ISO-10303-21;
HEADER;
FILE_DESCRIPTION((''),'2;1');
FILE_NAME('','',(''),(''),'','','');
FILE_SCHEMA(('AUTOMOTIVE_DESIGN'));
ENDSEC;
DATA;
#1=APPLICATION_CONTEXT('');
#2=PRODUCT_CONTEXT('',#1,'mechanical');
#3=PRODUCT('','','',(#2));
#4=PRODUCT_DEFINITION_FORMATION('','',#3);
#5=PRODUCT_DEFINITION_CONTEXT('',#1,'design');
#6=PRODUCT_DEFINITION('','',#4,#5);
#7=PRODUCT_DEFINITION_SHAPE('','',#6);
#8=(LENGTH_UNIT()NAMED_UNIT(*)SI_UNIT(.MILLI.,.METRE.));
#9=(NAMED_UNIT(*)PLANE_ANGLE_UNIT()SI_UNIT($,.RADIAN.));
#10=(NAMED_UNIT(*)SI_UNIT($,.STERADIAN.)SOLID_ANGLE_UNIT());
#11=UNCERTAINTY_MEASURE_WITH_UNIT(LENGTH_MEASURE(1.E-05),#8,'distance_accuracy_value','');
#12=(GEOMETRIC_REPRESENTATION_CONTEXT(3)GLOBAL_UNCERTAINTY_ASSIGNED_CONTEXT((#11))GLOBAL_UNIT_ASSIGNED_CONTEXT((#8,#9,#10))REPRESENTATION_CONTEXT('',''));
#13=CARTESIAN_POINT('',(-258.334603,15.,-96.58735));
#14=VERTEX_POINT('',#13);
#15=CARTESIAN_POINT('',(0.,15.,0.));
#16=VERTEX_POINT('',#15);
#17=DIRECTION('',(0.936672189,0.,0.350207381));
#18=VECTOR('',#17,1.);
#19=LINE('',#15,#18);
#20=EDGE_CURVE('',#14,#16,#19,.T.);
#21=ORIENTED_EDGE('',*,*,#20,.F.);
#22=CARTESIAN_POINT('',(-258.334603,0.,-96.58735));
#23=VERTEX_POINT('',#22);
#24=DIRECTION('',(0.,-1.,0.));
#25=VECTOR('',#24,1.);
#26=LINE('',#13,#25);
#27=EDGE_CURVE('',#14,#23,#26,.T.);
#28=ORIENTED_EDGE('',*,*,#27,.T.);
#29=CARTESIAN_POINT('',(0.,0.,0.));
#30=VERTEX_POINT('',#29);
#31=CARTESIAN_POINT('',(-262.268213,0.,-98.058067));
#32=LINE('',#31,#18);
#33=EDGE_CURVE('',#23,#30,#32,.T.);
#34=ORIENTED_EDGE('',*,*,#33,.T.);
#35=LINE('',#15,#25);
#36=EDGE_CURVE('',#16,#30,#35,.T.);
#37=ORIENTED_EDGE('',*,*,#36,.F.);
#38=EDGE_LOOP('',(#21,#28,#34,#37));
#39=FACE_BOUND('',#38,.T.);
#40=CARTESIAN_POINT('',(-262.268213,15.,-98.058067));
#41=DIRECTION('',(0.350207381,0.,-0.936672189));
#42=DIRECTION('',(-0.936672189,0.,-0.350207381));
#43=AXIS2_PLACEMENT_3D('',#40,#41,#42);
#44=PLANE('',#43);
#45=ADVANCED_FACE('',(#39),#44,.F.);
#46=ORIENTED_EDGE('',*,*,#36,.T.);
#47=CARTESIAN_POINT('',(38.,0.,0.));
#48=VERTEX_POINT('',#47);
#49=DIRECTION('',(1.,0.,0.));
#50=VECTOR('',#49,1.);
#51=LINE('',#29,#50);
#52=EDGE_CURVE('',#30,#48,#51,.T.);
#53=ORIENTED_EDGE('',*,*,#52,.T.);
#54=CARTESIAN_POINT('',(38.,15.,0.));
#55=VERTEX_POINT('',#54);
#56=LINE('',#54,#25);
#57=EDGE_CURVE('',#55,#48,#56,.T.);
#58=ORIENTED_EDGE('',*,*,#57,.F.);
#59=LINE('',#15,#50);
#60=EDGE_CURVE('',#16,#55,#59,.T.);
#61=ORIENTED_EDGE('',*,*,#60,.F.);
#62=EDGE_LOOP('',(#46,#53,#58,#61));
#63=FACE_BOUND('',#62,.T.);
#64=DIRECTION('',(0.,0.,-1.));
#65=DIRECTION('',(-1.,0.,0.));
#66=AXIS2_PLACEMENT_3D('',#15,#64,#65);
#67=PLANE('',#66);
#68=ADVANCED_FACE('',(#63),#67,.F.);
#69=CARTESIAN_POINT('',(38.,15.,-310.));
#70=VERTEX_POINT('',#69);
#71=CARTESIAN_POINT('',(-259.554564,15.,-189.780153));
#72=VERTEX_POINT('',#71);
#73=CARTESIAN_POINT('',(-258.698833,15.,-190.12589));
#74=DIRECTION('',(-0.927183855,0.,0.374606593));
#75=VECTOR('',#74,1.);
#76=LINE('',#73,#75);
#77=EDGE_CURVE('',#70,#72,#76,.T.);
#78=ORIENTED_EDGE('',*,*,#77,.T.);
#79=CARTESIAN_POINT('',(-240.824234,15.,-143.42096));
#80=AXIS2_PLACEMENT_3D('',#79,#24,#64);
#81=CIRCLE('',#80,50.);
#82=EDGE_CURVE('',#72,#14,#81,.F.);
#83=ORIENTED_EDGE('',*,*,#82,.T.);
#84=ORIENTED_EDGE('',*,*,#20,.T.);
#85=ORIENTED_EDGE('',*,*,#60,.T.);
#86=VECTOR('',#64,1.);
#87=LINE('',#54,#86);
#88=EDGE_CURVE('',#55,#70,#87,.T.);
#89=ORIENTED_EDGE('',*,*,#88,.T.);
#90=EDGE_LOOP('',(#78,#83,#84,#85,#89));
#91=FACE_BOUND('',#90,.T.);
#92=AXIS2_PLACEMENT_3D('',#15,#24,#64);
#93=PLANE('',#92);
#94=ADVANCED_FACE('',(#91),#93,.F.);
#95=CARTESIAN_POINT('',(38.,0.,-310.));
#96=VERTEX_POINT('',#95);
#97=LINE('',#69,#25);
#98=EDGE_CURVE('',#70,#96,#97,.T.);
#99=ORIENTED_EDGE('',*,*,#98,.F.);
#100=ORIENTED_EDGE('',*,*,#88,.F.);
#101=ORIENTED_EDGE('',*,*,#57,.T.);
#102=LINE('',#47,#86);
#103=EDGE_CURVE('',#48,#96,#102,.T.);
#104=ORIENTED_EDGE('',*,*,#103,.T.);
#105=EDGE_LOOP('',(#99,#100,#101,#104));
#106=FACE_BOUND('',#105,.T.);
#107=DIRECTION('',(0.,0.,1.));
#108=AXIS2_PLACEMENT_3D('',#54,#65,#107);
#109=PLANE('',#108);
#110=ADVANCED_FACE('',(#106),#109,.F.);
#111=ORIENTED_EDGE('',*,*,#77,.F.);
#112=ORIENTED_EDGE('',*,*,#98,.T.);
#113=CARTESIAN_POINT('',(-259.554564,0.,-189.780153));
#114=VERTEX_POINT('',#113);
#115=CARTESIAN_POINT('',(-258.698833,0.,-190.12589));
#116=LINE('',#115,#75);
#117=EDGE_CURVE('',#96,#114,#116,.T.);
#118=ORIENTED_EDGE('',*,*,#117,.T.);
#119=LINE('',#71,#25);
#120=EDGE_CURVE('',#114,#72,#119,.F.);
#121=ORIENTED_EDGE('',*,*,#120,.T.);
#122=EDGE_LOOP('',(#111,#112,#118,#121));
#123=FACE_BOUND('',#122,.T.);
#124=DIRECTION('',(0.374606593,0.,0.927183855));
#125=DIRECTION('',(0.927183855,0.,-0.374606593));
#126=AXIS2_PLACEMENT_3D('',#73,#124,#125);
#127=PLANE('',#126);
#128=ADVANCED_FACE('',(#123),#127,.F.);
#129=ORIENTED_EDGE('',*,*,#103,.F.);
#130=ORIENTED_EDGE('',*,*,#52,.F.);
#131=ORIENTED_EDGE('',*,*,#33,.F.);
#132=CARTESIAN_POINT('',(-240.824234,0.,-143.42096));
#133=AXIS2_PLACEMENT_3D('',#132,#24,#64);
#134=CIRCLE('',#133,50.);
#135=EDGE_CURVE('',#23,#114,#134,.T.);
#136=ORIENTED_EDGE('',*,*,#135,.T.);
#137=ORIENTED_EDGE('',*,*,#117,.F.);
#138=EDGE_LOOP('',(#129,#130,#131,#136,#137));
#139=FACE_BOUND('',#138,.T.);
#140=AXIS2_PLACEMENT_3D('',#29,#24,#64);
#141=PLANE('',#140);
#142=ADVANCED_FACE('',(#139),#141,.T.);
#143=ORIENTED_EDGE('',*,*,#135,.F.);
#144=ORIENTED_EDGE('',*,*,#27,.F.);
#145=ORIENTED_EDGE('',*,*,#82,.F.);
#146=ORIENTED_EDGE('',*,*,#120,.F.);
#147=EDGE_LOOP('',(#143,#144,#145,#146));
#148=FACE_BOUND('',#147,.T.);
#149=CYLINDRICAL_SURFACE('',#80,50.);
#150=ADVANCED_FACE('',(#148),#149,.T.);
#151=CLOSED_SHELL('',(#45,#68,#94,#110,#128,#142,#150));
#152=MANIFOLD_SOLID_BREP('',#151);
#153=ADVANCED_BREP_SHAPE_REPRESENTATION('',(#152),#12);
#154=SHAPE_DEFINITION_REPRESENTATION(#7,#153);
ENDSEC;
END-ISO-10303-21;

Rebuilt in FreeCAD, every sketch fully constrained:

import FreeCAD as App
import Part
import Sketcher

V = App.Vector
Q = App.Units.Quantity


def edges_at(feature, points):
    """Names of the edges that pass closest to the given points."""
    edges = feature.Shape.Edges
    near = lambda p: min(range(len(edges)), key=lambda i: edges[i].distToShape(Part.Vertex(*p))[0])
    return sorted({f"Edge{near(p) + 1}" for p in points})


def add_polygon(sketch, points):
    """Adds a closed chain of lines whose ends are joined by coincident constraints."""
    first, n = sketch.GeometryCount, len(points)
    for a, b in zip(points, points[1:] + points[:1]):
        sketch.addGeometry(Part.LineSegment(App.Vector(*a, 0), App.Vector(*b, 0)), False)
    for i in range(n):
        sketch.addConstraint(Sketcher.Constraint("Coincident", first + i, 2, first + (i + 1) % n, 1))

doc = App.newDocument("Part")
body = doc.addObject("PartDesign::Body", "Body")

sketch1 = body.newObject("Sketcher::SketchObject", "Sketch")
sketch1.AttachmentSupport = (doc.getObject("XZ_Plane"), [""])
sketch1.MapMode = "FlatFace"
add_polygon(sketch1, [(0, 0), (38, 0), (38, -310), (-258.698833, -190.12589), (-378.76703, -141.61519)])
sketch1.addConstraint(Sketcher.Constraint("Horizontal", 0))
sketch1.addConstraint(Sketcher.Constraint("Vertical", 1))
sketch1.addConstraint(Sketcher.Constraint("Coincident", 4, 2, -1, 1))
sketch1.addConstraint(Sketcher.Constraint("Parallel", 2, 3))
sketch1.addConstraint(Sketcher.Constraint("DistanceX", 0, 1, 0, 2, 38.0))
sketch1.addConstraint(Sketcher.Constraint("DistanceY", 1, 2, 1, 1, 310.0))
sketch1.addConstraint(Sketcher.Constraint("Angle", 2, Q("158 deg")))
sketch1.addConstraint(Sketcher.Constraint("Distance", 2, 320.0))
sketch1.addConstraint(Sketcher.Constraint("Angle", 4, Q("20.5 deg")))
pad1 = body.newObject("PartDesign::Pad", "Pad")
pad1.Profile = sketch1
pad1.Length = 15
pad1.Reversed = True
doc.recompute()

fillet = body.newObject("PartDesign::Fillet", "Fillet")
fillet.Base = (pad1, edges_at(pad1, [(-378.767, 7.5, -141.615)]))
fillet.Radius = 50

doc.recompute()
